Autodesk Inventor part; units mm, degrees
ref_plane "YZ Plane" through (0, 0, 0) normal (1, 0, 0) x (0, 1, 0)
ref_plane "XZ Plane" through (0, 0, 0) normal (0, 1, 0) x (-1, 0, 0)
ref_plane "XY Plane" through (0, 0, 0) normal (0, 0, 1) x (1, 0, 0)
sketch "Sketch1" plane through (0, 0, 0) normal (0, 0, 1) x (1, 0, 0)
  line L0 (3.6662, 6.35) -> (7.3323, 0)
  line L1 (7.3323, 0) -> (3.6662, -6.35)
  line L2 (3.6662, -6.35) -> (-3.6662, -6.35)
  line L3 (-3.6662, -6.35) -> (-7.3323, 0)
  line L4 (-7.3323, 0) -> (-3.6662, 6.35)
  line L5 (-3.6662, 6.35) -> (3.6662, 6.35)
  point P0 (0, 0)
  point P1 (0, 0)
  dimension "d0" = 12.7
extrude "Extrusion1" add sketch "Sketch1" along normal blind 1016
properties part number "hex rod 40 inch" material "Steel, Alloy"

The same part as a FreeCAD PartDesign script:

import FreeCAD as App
import Part
import Sketcher
from FreeCAD import Vector
Q = App.Units.Quantity


def add_polygon(sketch, points):
    """Adds a closed chain of lines whose ends are joined by coincident constraints."""
    first, n = sketch.GeometryCount, len(points)
    for a, b in zip(points, points[1:] + points[:1]):
        sketch.addGeometry(Part.LineSegment(App.Vector(*a, 0), App.Vector(*b, 0)), False)
    for i in range(n):
        sketch.addConstraint(Sketcher.Constraint("Coincident", first + i, 2, first + (i + 1) % n, 1))

doc = App.newDocument("Part")
body = doc.addObject("PartDesign::Body", "Body")

sketch1 = body.newObject("Sketcher::SketchObject", "Sketch")
sketch1.AttachmentSupport = (doc.getObject("XY_Plane"), [""])
sketch1.MapMode = "FlatFace"
add_polygon(sketch1, [(7, 0), (4, 6), (-4, 6), (-7, 0), (-4, -6), (4, -6)])
sketch1.addConstraint([
    Sketcher.Constraint("Horizontal", 1),
    Sketcher.Constraint("Horizontal", 4),
    Sketcher.Constraint("Symmetric", 0, 2, 3, 2, -1, 1),
    Sketcher.Constraint("Symmetric", 2, 2, 5, 2, -1, 1),
    Sketcher.Constraint("PointOnObject", 2, 2, -1),
    Sketcher.Constraint("Parallel", 2, 5),
    Sketcher.Constraint("Vertical", 1, 2, 3, 2),
    Sketcher.Constraint("DistanceY", 3, 2, 1, 2, Q("0.5 in")),
    Sketcher.Constraint("Angle", 0, Q("119.9995 deg")),
    Sketcher.Constraint("DistanceX", 2, 2, 0, 2, Q("0.433 in")),
])
pad1 = body.newObject("PartDesign::Pad", "Pad")
pad1.Profile = sketch1
pad1.Length = Q("40 in")

doc.recompute()
